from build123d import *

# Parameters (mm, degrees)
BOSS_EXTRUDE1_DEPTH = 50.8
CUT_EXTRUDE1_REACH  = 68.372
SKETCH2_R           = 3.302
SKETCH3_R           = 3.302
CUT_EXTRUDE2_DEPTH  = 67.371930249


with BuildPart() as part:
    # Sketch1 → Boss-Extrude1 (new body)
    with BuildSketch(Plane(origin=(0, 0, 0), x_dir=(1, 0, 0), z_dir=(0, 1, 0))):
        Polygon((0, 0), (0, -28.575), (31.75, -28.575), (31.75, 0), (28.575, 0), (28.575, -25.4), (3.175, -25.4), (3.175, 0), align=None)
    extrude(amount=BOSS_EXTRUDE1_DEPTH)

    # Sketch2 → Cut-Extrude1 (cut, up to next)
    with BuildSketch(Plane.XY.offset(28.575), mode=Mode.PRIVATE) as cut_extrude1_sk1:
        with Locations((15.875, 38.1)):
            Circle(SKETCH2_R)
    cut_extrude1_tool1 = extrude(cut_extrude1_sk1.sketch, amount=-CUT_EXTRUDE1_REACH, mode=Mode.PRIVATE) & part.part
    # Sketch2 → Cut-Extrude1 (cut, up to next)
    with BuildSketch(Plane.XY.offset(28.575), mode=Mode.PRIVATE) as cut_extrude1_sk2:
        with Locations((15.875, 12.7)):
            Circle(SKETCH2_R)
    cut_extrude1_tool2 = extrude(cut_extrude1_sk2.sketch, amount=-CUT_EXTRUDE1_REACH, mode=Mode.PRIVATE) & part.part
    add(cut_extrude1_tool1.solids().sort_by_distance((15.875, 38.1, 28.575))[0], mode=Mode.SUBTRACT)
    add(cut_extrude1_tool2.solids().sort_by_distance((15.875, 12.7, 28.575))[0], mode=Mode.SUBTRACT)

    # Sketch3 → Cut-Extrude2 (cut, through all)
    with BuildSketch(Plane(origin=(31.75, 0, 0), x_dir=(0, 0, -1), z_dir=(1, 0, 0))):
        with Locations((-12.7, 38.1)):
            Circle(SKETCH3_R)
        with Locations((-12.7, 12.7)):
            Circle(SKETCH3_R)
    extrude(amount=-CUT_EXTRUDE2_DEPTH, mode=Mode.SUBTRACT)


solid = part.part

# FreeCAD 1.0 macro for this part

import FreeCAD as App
import Part
import Sketcher

V = App.Vector
Q = App.Units.Quantity


def add_polygon(sketch, points):
    """Adds a closed chain of lines whose ends are joined by coincident constraints."""
    first, n = sketch.GeometryCount, len(points)
    for a, b in zip(points, points[1:] + points[:1]):
        sketch.addGeometry(Part.LineSegment(App.Vector(*a, 0), App.Vector(*b, 0)), False)
    for i in range(n):
        sketch.addConstraint(Sketcher.Constraint("Coincident", first + i, 2, first + (i + 1) % n, 1))

doc = App.newDocument("Part")
body = doc.addObject("PartDesign::Body", "Body")

sketch1 = doc.addObject("Sketcher::SketchObject", "Sketch")
body.addObject(sketch1)
sketch1.AttachmentSupport = (doc.XZ_Plane, [""])
sketch1.MapMode = "FlatFace"
add_polygon(sketch1, [(0, 0), (0, 28.575), (31.75, 28.575), (31.75, 0), (28.575, 0), (28.575, 25.4), (3.175, 25.4), (3.175, 0)])
sketch1.addConstraint([
    Sketcher.Constraint("Vertical", 0),
    Sketcher.Constraint("Horizontal", 1),
    Sketcher.Constraint("Vertical", 2),
    Sketcher.Constraint("Horizontal", 3),
    Sketcher.Constraint("Vertical", 4),
    Sketcher.Constraint("Horizontal", 5),
    Sketcher.Constraint("Vertical", 6),
    Sketcher.Constraint("Horizontal", 7),
    Sketcher.Constraint("Coincident", 7, 2, -1, 1),
    Sketcher.Constraint("PointOnObject", 2, 2, -1),
    Sketcher.Constraint("Equal", 3, 7),
    Sketcher.Constraint("Equal", 5, 4),
    Sketcher.Constraint("DistanceX", 5, 2, 5, 1, Q("1 in")),
    Sketcher.Constraint("DistanceX", 1, 1, 1, 2, Q("1.25 in")),
    Sketcher.Constraint("DistanceY", 0, 1, 0, 2, Q("1.125 in")),
])
pad1 = doc.addObject("PartDesign::Pad", "Pad")
body.addObject(pad1)
pad1.Profile = sketch1
pad1.Length = Q("2 in")
pad1.Reversed = True

sketch2 = doc.addObject("Sketcher::SketchObject", "Sketch001")
body.addObject(sketch2)
sketch2.AttachmentSupport = (doc.XY_Plane, [""])
sketch2.MapMode = "FlatFace"
sketch2.AttachmentOffset = App.Placement(V(0, 0, 1.125 * 25.4), App.Rotation())
sketch2.addGeometry(Part.Circle(V(15.875, 38.1, 0), V(0, 0, 1), 3.302), False)
sketch2.addConstraint([
    Sketcher.Constraint("Diameter", 0, Q("0.26 in")),
    Sketcher.Constraint("DistanceY", -1, 1, 0, 3, Q("1.5 in")),
    Sketcher.Constraint("DistanceX", -1, 1, 0, 3, Q("0.625 in")),
])
pocket1 = doc.addObject("PartDesign::Pocket", "Pocket")
body.addObject(pocket1)
pocket1.Profile = sketch2
pocket1.Type = "UpToFirst"

sketch3 = doc.addObject("Sketcher::SketchObject", "Sketch002")
body.addObject(sketch3)
sketch3.AttachmentSupport = (doc.XY_Plane, [""])
sketch3.MapMode = "FlatFace"
sketch3.AttachmentOffset = App.Placement(V(0, 0, 1.125 * 25.4), App.Rotation())
sketch3.addGeometry(Part.Circle(V(15.875, 12.7, 0), V(0, 0, 1), 3.302), False)
sketch3.addConstraint([
    Sketcher.Constraint("Diameter", 0, Q("0.26 in")),
    Sketcher.Constraint("DistanceY", -1, 1, 0, 3, Q("0.5 in")),
    Sketcher.Constraint("DistanceX", -1, 1, 0, 3, Q("0.625 in")),
])
pocket2 = doc.addObject("PartDesign::Pocket", "Pocket001")
body.addObject(pocket2)
pocket2.Profile = sketch3
pocket2.Type = "UpToFirst"

sketch4 = doc.addObject("Sketcher::SketchObject", "Sketch003")
body.addObject(sketch4)
sketch4.AttachmentSupport = (doc.YZ_Plane, [""])
sketch4.MapMode = "FlatFace"
sketch4.AttachmentOffset = App.Placement(V(0, 0, 1.25 * 25.4), App.Rotation())
sketch4.addGeometry([
    Part.Circle(V(38.1, 12.7, 0), V(0, 0, 1), 3.302),
    Part.Circle(V(12.7, 12.7, 0), V(0, 0, 1), 3.302),
], False)
sketch4.addConstraint([
    Sketcher.Constraint("Equal", 0, 1),
    Sketcher.Constraint("Horizontal", 0, 3, 1, 3),
    Sketcher.Constraint("Diameter", 0, Q("0.26 in")),
    Sketcher.Constraint("DistanceX", 1, 3, 0, 3, Q("1 in")),
    Sketcher.Constraint("DistanceX", -1, 1, 0, 3, Q("1.5 in")),
    Sketcher.Constraint("DistanceY", -1, 1, 0, 3, Q("0.5 in")),
])
pocket3 = doc.addObject("PartDesign::Pocket", "Pocket002")
body.addObject(pocket3)
pocket3.Profile = sketch4
pocket3.Type = "ThroughAll"

doc.recompute()
